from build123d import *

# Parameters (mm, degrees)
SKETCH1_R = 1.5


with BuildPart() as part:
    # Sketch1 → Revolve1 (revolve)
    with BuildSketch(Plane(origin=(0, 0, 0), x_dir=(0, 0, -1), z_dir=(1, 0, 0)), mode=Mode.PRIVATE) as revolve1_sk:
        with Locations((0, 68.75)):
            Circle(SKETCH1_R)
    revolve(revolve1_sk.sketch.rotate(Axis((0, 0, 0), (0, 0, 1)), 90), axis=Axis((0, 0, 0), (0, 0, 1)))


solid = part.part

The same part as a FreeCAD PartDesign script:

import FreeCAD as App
import Part
import Sketcher
Q = App.Units.Quantity

doc = App.newDocument("Part")
body = doc.addObject("PartDesign::Body", "Body")

# Sketch on YZ plane
sketch1 = doc.addObject("Sketcher::SketchObject", "Sketch")
body.addObject(sketch1)
sketch1.AttachmentSupport = (doc.YZ_Plane, [""])
sketch1.MapMode = "FlatFace"
sketch1.addGeometry(Part.Circle(App.Vector(68.8, 0, 0), App.Vector(0, 0, 1), 1.5), False)
sketch1.addConstraint(Sketcher.Constraint("PointOnObject", 0, 3, -1))
sketch1.addConstraint(Sketcher.Constraint("Diameter", 0, Q("3 mm")))
sketch1.addConstraint(Sketcher.Constraint("DistanceX", -1, 1, 0, 3, Q("68.75 mm")))
revolution = doc.addObject("PartDesign::Revolution", "Revolution")
body.addObject(revolution)
revolution.Profile = sketch1
revolution.ReferenceAxis = (sketch1, ["V_Axis"])
revolution.Angle = 360

doc.recompute()
